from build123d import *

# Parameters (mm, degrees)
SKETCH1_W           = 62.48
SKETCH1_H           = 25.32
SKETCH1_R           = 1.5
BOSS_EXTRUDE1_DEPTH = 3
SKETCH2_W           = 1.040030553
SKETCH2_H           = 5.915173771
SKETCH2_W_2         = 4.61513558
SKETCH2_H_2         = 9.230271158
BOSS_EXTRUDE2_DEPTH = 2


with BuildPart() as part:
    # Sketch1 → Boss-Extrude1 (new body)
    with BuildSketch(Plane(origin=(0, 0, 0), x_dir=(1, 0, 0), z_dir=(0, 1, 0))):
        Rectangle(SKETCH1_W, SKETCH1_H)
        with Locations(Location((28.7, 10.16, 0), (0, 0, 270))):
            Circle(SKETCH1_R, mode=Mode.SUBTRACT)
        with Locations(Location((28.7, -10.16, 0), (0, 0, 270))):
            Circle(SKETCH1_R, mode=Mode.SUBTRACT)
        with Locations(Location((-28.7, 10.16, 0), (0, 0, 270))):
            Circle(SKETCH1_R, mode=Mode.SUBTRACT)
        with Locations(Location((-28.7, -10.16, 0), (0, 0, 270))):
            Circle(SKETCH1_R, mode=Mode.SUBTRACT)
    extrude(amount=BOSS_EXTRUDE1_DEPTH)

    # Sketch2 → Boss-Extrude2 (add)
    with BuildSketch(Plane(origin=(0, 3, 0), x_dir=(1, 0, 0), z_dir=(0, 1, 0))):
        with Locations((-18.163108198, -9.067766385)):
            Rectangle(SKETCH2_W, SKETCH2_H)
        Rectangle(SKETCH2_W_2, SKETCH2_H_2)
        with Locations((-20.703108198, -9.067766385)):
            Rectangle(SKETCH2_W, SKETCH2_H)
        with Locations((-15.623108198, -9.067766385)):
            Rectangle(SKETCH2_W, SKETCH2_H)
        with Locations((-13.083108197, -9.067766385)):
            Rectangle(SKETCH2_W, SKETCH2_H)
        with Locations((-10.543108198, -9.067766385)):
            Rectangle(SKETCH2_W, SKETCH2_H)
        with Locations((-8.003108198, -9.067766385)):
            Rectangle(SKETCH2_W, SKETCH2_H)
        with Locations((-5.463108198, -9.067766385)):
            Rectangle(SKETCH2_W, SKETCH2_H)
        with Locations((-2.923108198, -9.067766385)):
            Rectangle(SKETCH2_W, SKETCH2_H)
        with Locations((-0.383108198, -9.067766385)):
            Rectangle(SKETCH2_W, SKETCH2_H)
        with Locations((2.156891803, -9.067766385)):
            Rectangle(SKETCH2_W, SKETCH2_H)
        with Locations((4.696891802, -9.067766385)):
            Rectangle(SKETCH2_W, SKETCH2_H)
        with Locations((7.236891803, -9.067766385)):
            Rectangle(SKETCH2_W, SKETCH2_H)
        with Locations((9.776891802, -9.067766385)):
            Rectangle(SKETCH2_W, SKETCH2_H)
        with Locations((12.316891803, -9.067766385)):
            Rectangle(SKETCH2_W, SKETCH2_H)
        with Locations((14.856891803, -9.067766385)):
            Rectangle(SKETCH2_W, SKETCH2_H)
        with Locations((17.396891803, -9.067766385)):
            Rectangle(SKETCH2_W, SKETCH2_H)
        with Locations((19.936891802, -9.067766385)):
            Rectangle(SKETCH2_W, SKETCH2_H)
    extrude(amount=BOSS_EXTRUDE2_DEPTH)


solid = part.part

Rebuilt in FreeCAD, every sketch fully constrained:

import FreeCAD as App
import Part
import Sketcher
from FreeCAD import Vector


def add_polygon(sketch, points):
    """Adds a closed chain of lines whose ends are joined by coincident constraints."""
    first, n = sketch.GeometryCount, len(points)
    for a, b in zip(points, points[1:] + points[:1]):
        sketch.addGeometry(Part.LineSegment(App.Vector(*a, 0), App.Vector(*b, 0)), False)
    for i in range(n):
        sketch.addConstraint(Sketcher.Constraint("Coincident", first + i, 2, first + (i + 1) % n, 1))

doc = App.newDocument("Part")
params = doc.addObject("Spreadsheet::Sheet", "Params")
for row, (alias, value) in enumerate([
    ("sketch1_diameter", "3 mm"),
    ("sketch1_width", "62.48 mm"),
    ("sketch1_height", "25.32 mm"),
    ("pad1_length", "3 mm"),
    ("pad2_length", "2 mm"),
], start=1):
    params.set(f"A{row}", alias)
    params.set(f"B{row}", "=" + value)
    params.setAlias(f"B{row}", alias)

body = doc.addObject("PartDesign::Body", "Body")

# Sketch on XZ plane
sketch1 = body.newObject("Sketcher::SketchObject", "Sketch")
sketch1.AttachmentSupport = (doc.getObject("XZ_Plane"), [""])
sketch1.MapMode = "FlatFace"
add_polygon(sketch1, [(-31.2, -12.7), (-31.2, 12.7), (31.2, 12.7), (31.2, -12.7)])  # lines 0-3
sketch1.addGeometry(Part.Circle(Vector(-28.7, 10.2, 0), Vector(0, 0, 1), 1.5), False)  # 4
sketch1.addGeometry(Part.Circle(Vector(28.7, 10.2, 0), Vector(0, 0, 1), 1.5), False)  # 5
sketch1.addGeometry(Part.Circle(Vector(-28.7, -10.2, 0), Vector(0, 0, 1), 1.5), False)  # 6
sketch1.addGeometry(Part.Circle(Vector(28.7, -10.2, 0), Vector(0, 0, 1), 1.5), False)  # 7
sketch1.addConstraint([
    Sketcher.Constraint("Vertical", 0),
    Sketcher.Constraint("Horizontal", 1),
    Sketcher.Constraint("Vertical", 2),
    Sketcher.Constraint("Horizontal", 3),
    Sketcher.Constraint("Equal", 4, 5),
    Sketcher.Constraint("Equal", 5, 6),
    Sketcher.Constraint("Equal", 6, 7),
    Sketcher.Constraint("Symmetric", 5, 3, 6, 3, -1, 1),
    Sketcher.Constraint("Symmetric", 4, 3, 7, 3, -1, 1),
    Sketcher.Constraint("Symmetric", 0, 2, 2, 2, -1, 1),
    Sketcher.Constraint("Symmetric", 4, 3, 5, 3, -2),
    Sketcher.Constraint("Diameter", 4, 3.0),
    Sketcher.Constraint("DistanceX", 1, 1, 1, 2, 62.48),
    Sketcher.Constraint("DistanceY", 0, 1, 0, 2, 25.32),
    Sketcher.Constraint("DistanceX", 4, 3, -1, 1, 28.7),
    Sketcher.Constraint("DistanceY", 4, 3, 0, 2, 2.5),
])
sketch1.setExpression("Constraints[15]", "Params.sketch1_diameter")
sketch1.setExpression("Constraints[16]", "Params.sketch1_width")
sketch1.setExpression("Constraints[17]", "Params.sketch1_height")
pad1 = body.newObject("PartDesign::Pad", "Pad")
pad1.Profile = sketch1
pad1.setExpression("Length", "Params.pad1_length")
pad1.Reversed = True

# Sketch on XZ plane
sketch2 = body.newObject("Sketcher::SketchObject", "Sketch001")
sketch2.AttachmentSupport = (doc.getObject("XZ_Plane"), [""])
sketch2.MapMode = "FlatFace"
sketch2.AttachmentOffset = App.Placement(Vector(0, 0, -3), App.Rotation())
add_polygon(sketch2, [(-18.7, 6.1), (-18.7, 12), (-17.6, 12), (-17.6, 6.1)])  # lines 0-3
add_polygon(sketch2, [(-2.3, -4.6), (-2.3, 4.6), (2.3, 4.6), (2.3, -4.6)])  # lines 4-7
add_polygon(sketch2, [(-21.2, 6.1), (-21.2, 12), (-20.2, 12), (-20.2, 6.1)])  # lines 8-11
add_polygon(sketch2, [(-16.1, 6.1), (-16.1, 12), (-15.1, 12), (-15.1, 6.1)])  # lines 12-15
add_polygon(sketch2, [(-13.6, 6.1), (-13.6, 12), (-12.6, 12), (-12.6, 6.1)])  # lines 16-19
add_polygon(sketch2, [(-11.1, 6.1), (-11.1, 12), (-10, 12), (-10, 6.1)])  # lines 20-23
add_polygon(sketch2, [(-8.5, 6.1), (-8.5, 12), (-7.5, 12), (-7.5, 6.1)])  # lines 24-27
add_polygon(sketch2, [(-6, 6.1), (-6, 12), (-4.9, 12), (-4.9, 6.1)])  # lines 28-31
add_polygon(sketch2, [(-3.4, 6.1), (-3.4, 12), (-2.4, 12), (-2.4, 6.1)])  # lines 32-35
add_polygon(sketch2, [(-0.9, 6.1), (-0.9, 12), (0.1, 12), (0.1, 6.1)])  # lines 36-39
add_polygon(sketch2, [(1.6, 6.1), (1.6, 12), (2.7, 12), (2.7, 6.1)])  # lines 40-43
add_polygon(sketch2, [(4.2, 6.1), (4.2, 12), (5.2, 12), (5.2, 6.1)])  # lines 44-47
add_polygon(sketch2, [(6.7, 6.1), (6.7, 12), (7.8, 12), (7.8, 6.1)])  # lines 48-51
add_polygon(sketch2, [(9.3, 6.1), (9.3, 12), (10.3, 12), (10.3, 6.1)])  # lines 52-55
add_polygon(sketch2, [(11.8, 6.1), (11.8, 12), (12.8, 12), (12.8, 6.1)])  # lines 56-59
add_polygon(sketch2, [(14.3, 6.1), (14.3, 12), (15.4, 12), (15.4, 6.1)])  # lines 60-63
add_polygon(sketch2, [(16.9, 6.1), (16.9, 12), (17.9, 12), (17.9, 6.1)])  # lines 64-67
add_polygon(sketch2, [(19.4, 6.1), (19.4, 12), (20.5, 12), (20.5, 6.1)])  # lines 68-71
sketch2.addConstraint([
    Sketcher.Constraint("Vertical", 0),
    Sketcher.Constraint("Horizontal", 1),
    Sketcher.Constraint("Vertical", 2),
    Sketcher.Constraint("Horizontal", 3),
    Sketcher.Constraint("Vertical", 4),
    Sketcher.Constraint("Horizontal", 5),
    Sketcher.Constraint("Vertical", 6),
    Sketcher.Constraint("Horizontal", 7),
    Sketcher.Constraint("Vertical", 8),
    Sketcher.Constraint("Horizontal", 9),
    Sketcher.Constraint("Vertical", 10),
    Sketcher.Constraint("Horizontal", 11),
    Sketcher.Constraint("Vertical", 12),
    Sketcher.Constraint("Horizontal", 13),
    Sketcher.Constraint("Vertical", 14),
    Sketcher.Constraint("Horizontal", 15),
    Sketcher.Constraint("Vertical", 16),
    Sketcher.Constraint("Horizontal", 17),
    Sketcher.Constraint("Vertical", 18),
    Sketcher.Constraint("Horizontal", 19),
    Sketcher.Constraint("Vertical", 20),
    Sketcher.Constraint("Horizontal", 21),
    Sketcher.Constraint("Vertical", 22),
    Sketcher.Constraint("Horizontal", 23),
    Sketcher.Constraint("Vertical", 24),
    Sketcher.Constraint("Horizontal", 25),
    Sketcher.Constraint("Vertical", 26),
    Sketcher.Constraint("Horizontal", 27),
    Sketcher.Constraint("Vertical", 28),
    Sketcher.Constraint("Horizontal", 29),
    Sketcher.Constraint("Vertical", 30),
    Sketcher.Constraint("Horizontal", 31),
    Sketcher.Constraint("Vertical", 32),
    Sketcher.Constraint("Horizontal", 33),
    Sketcher.Constraint("Vertical", 34),
    Sketcher.Constraint("Horizontal", 35),
    Sketcher.Constraint("Vertical", 36),
    Sketcher.Constraint("Horizontal", 37),
    Sketcher.Constraint("Vertical", 38),
    Sketcher.Constraint("Horizontal", 39),
    Sketcher.Constraint("Vertical", 40),
    Sketcher.Constraint("Horizontal", 41),
    Sketcher.Constraint("Vertical", 42),
    Sketcher.Constraint("Horizontal", 43),
    Sketcher.Constraint("Vertical", 44),
    Sketcher.Constraint("Horizontal", 45),
    Sketcher.Constraint("Vertical", 46),
    Sketcher.Constraint("Horizontal", 47),
    Sketcher.Constraint("Vertical", 48),
    Sketcher.Constraint("Horizontal", 49),
    Sketcher.Constraint("Vertical", 50),
    Sketcher.Constraint("Horizontal", 51),
    Sketcher.Constraint("Vertical", 52),
    Sketcher.Constraint("Horizontal", 53),
    Sketcher.Constraint("Vertical", 54),
    Sketcher.Constraint("Horizontal", 55),
    Sketcher.Constraint("Vertical", 56),
    Sketcher.Constraint("Horizontal", 57),
    Sketcher.Constraint("Vertical", 58),
    Sketcher.Constraint("Horizontal", 59),
    Sketcher.Constraint("Vertical", 60),
    Sketcher.Constraint("Horizontal", 61),
    Sketcher.Constraint("Vertical", 62),
    Sketcher.Constraint("Horizontal", 63),
    Sketcher.Constraint("Vertical", 64),
    Sketcher.Constraint("Horizontal", 65),
    Sketcher.Constraint("Vertical", 66),
    Sketcher.Constraint("Horizontal", 67),
    Sketcher.Constraint("Vertical", 68),
    Sketcher.Constraint("Horizontal", 69),
    Sketcher.Constraint("Vertical", 70),
    Sketcher.Constraint("Horizontal", 71),
    Sketcher.Constraint("Symmetric", 4, 2, 6, 2, -1, 1),
    Sketcher.Constraint("Horizontal", 1, 2, 8, 2),
    Sketcher.Constraint("Horizontal", 3, 2, 10, 2),
    Sketcher.Constraint("Horizontal", 9, 2, 12, 2),
    Sketcher.Constraint("Horizontal", 11, 2, 14, 2),
    Sketcher.Constraint("Horizontal", 13, 2, 16, 2),
    Sketcher.Constraint("Horizontal", 15, 2, 18, 2),
    Sketcher.Constraint("Horizontal", 17, 2, 20, 2),
    Sketcher.Constraint("Horizontal", 19, 2, 22, 2),
    Sketcher.Constraint("Horizontal", 21, 2, 24, 2),
    Sketcher.Constraint("Horizontal", 23, 2, 26, 2),
    Sketcher.Constraint("Horizontal", 25, 2, 28, 2),
    Sketcher.Constraint("Horizontal", 27, 2, 30, 2),
    Sketcher.Constraint("Horizontal", 29, 2, 32, 2),
    Sketcher.Constraint("Horizontal", 31, 2, 34, 2),
    Sketcher.Constraint("Horizontal", 33, 2, 36, 2),
    Sketcher.Constraint("Horizontal", 35, 2, 38, 2),
    Sketcher.Constraint("Horizontal", 37, 2, 40, 2),
    Sketcher.Constraint("Horizontal", 39, 2, 42, 2),
    Sketcher.Constraint("Horizontal", 41, 2, 44, 2),
    Sketcher.Constraint("Horizontal", 43, 2, 46, 2),
    Sketcher.Constraint("Horizontal", 45, 2, 48, 2),
    Sketcher.Constraint("Horizontal", 47, 2, 50, 2),
    Sketcher.Constraint("Horizontal", 49, 2, 52, 2),
    Sketcher.Constraint("Horizontal", 51, 2, 54, 2),
    Sketcher.Constraint("Horizontal", 53, 2, 56, 2),
    Sketcher.Constraint("Horizontal", 55, 2, 58, 2),
    Sketcher.Constraint("Horizontal", 57, 2, 60, 2),
    Sketcher.Constraint("Horizontal", 59, 2, 62, 2),
    Sketcher.Constraint("Horizontal", 61, 2, 64, 2),
    Sketcher.Constraint("Horizontal", 63, 2, 66, 2),
    Sketcher.Constraint("Horizontal", 65, 2, 68, 2),
    Sketcher.Constraint("Horizontal", 67, 2, 70, 2),
    Sketcher.Constraint("Equal", 3, 9),
    Sketcher.Constraint("Equal", 11, 13),
    Sketcher.Constraint("Equal", 15, 17),
    Sketcher.Constraint("Equal", 19, 21),
    Sketcher.Constraint("Equal", 23, 25),
    Sketcher.Constraint("Equal", 27, 29),
    Sketcher.Constraint("Equal", 31, 33),
    Sketcher.Constraint("Equal", 35, 37),
    Sketcher.Constraint("Equal", 39, 41),
    Sketcher.Constraint("Equal", 43, 45),
    Sketcher.Constraint("Equal", 47, 49),
    Sketcher.Constraint("Equal", 51, 53),
    Sketcher.Constraint("Equal", 55, 57),
    Sketcher.Constraint("Equal", 59, 61),
    Sketcher.Constraint("Equal", 63, 65),
    Sketcher.Constraint("Equal", 67, 69),
    Sketcher.Constraint("DistanceX", 1, 1, 1, 2, 1.040031),
    Sketcher.Constraint("DistanceY", 4, 1, 4, 2, 9.230271),
    Sketcher.Constraint("DistanceX", 5, 1, 5, 2, 4.615136),
    Sketcher.Constraint("DistanceY", 0, 1, 0, 2, 5.915174),
    Sketcher.Constraint("DistanceY", -1, 1, 2, 2, 6.11018),
    Sketcher.Constraint("DistanceX", 0, 2, -1, 1, 18.683123),
    Sketcher.Constraint("DistanceX", 8, 2, -1, 1, 21.223123),
    Sketcher.Constraint("DistanceX", 12, 2, -1, 1, 16.143123),
    Sketcher.Constraint("DistanceX", 16, 2, -1, 1, 13.603123),
    Sketcher.Constraint("DistanceX", 20, 2, -1, 1, 11.063123),
    Sketcher.Constraint("DistanceX", 24, 2, -1, 1, 8.523123),
    Sketcher.Constraint("DistanceX", 28, 2, -1, 1, 5.983123),
    Sketcher.Constraint("DistanceX", 32, 2, -1, 1, 3.443123),
    Sketcher.Constraint("DistanceX", 36, 2, -1, 1, 0.903123),
    Sketcher.Constraint("DistanceX", -1, 1, 40, 2, 1.636877),
    Sketcher.Constraint("DistanceX", -1, 1, 44, 2, 4.176877),
    Sketcher.Constraint("DistanceX", -1, 1, 48, 2, 6.716877),
    Sketcher.Constraint("DistanceX", -1, 1, 52, 2, 9.256877),
    Sketcher.Constraint("DistanceX", -1, 1, 56, 2, 11.796877),
    Sketcher.Constraint("DistanceX", -1, 1, 60, 2, 14.336877),
    Sketcher.Constraint("DistanceX", -1, 1, 64, 2, 16.876877),
    Sketcher.Constraint("DistanceX", -1, 1, 68, 2, 19.416877),
])
pad2 = body.newObject("PartDesign::Pad", "Pad001")
pad2.Profile = sketch2
pad2.setExpression("Length", "Params.pad2_length")
pad2.Reversed = True

doc.recompute()
